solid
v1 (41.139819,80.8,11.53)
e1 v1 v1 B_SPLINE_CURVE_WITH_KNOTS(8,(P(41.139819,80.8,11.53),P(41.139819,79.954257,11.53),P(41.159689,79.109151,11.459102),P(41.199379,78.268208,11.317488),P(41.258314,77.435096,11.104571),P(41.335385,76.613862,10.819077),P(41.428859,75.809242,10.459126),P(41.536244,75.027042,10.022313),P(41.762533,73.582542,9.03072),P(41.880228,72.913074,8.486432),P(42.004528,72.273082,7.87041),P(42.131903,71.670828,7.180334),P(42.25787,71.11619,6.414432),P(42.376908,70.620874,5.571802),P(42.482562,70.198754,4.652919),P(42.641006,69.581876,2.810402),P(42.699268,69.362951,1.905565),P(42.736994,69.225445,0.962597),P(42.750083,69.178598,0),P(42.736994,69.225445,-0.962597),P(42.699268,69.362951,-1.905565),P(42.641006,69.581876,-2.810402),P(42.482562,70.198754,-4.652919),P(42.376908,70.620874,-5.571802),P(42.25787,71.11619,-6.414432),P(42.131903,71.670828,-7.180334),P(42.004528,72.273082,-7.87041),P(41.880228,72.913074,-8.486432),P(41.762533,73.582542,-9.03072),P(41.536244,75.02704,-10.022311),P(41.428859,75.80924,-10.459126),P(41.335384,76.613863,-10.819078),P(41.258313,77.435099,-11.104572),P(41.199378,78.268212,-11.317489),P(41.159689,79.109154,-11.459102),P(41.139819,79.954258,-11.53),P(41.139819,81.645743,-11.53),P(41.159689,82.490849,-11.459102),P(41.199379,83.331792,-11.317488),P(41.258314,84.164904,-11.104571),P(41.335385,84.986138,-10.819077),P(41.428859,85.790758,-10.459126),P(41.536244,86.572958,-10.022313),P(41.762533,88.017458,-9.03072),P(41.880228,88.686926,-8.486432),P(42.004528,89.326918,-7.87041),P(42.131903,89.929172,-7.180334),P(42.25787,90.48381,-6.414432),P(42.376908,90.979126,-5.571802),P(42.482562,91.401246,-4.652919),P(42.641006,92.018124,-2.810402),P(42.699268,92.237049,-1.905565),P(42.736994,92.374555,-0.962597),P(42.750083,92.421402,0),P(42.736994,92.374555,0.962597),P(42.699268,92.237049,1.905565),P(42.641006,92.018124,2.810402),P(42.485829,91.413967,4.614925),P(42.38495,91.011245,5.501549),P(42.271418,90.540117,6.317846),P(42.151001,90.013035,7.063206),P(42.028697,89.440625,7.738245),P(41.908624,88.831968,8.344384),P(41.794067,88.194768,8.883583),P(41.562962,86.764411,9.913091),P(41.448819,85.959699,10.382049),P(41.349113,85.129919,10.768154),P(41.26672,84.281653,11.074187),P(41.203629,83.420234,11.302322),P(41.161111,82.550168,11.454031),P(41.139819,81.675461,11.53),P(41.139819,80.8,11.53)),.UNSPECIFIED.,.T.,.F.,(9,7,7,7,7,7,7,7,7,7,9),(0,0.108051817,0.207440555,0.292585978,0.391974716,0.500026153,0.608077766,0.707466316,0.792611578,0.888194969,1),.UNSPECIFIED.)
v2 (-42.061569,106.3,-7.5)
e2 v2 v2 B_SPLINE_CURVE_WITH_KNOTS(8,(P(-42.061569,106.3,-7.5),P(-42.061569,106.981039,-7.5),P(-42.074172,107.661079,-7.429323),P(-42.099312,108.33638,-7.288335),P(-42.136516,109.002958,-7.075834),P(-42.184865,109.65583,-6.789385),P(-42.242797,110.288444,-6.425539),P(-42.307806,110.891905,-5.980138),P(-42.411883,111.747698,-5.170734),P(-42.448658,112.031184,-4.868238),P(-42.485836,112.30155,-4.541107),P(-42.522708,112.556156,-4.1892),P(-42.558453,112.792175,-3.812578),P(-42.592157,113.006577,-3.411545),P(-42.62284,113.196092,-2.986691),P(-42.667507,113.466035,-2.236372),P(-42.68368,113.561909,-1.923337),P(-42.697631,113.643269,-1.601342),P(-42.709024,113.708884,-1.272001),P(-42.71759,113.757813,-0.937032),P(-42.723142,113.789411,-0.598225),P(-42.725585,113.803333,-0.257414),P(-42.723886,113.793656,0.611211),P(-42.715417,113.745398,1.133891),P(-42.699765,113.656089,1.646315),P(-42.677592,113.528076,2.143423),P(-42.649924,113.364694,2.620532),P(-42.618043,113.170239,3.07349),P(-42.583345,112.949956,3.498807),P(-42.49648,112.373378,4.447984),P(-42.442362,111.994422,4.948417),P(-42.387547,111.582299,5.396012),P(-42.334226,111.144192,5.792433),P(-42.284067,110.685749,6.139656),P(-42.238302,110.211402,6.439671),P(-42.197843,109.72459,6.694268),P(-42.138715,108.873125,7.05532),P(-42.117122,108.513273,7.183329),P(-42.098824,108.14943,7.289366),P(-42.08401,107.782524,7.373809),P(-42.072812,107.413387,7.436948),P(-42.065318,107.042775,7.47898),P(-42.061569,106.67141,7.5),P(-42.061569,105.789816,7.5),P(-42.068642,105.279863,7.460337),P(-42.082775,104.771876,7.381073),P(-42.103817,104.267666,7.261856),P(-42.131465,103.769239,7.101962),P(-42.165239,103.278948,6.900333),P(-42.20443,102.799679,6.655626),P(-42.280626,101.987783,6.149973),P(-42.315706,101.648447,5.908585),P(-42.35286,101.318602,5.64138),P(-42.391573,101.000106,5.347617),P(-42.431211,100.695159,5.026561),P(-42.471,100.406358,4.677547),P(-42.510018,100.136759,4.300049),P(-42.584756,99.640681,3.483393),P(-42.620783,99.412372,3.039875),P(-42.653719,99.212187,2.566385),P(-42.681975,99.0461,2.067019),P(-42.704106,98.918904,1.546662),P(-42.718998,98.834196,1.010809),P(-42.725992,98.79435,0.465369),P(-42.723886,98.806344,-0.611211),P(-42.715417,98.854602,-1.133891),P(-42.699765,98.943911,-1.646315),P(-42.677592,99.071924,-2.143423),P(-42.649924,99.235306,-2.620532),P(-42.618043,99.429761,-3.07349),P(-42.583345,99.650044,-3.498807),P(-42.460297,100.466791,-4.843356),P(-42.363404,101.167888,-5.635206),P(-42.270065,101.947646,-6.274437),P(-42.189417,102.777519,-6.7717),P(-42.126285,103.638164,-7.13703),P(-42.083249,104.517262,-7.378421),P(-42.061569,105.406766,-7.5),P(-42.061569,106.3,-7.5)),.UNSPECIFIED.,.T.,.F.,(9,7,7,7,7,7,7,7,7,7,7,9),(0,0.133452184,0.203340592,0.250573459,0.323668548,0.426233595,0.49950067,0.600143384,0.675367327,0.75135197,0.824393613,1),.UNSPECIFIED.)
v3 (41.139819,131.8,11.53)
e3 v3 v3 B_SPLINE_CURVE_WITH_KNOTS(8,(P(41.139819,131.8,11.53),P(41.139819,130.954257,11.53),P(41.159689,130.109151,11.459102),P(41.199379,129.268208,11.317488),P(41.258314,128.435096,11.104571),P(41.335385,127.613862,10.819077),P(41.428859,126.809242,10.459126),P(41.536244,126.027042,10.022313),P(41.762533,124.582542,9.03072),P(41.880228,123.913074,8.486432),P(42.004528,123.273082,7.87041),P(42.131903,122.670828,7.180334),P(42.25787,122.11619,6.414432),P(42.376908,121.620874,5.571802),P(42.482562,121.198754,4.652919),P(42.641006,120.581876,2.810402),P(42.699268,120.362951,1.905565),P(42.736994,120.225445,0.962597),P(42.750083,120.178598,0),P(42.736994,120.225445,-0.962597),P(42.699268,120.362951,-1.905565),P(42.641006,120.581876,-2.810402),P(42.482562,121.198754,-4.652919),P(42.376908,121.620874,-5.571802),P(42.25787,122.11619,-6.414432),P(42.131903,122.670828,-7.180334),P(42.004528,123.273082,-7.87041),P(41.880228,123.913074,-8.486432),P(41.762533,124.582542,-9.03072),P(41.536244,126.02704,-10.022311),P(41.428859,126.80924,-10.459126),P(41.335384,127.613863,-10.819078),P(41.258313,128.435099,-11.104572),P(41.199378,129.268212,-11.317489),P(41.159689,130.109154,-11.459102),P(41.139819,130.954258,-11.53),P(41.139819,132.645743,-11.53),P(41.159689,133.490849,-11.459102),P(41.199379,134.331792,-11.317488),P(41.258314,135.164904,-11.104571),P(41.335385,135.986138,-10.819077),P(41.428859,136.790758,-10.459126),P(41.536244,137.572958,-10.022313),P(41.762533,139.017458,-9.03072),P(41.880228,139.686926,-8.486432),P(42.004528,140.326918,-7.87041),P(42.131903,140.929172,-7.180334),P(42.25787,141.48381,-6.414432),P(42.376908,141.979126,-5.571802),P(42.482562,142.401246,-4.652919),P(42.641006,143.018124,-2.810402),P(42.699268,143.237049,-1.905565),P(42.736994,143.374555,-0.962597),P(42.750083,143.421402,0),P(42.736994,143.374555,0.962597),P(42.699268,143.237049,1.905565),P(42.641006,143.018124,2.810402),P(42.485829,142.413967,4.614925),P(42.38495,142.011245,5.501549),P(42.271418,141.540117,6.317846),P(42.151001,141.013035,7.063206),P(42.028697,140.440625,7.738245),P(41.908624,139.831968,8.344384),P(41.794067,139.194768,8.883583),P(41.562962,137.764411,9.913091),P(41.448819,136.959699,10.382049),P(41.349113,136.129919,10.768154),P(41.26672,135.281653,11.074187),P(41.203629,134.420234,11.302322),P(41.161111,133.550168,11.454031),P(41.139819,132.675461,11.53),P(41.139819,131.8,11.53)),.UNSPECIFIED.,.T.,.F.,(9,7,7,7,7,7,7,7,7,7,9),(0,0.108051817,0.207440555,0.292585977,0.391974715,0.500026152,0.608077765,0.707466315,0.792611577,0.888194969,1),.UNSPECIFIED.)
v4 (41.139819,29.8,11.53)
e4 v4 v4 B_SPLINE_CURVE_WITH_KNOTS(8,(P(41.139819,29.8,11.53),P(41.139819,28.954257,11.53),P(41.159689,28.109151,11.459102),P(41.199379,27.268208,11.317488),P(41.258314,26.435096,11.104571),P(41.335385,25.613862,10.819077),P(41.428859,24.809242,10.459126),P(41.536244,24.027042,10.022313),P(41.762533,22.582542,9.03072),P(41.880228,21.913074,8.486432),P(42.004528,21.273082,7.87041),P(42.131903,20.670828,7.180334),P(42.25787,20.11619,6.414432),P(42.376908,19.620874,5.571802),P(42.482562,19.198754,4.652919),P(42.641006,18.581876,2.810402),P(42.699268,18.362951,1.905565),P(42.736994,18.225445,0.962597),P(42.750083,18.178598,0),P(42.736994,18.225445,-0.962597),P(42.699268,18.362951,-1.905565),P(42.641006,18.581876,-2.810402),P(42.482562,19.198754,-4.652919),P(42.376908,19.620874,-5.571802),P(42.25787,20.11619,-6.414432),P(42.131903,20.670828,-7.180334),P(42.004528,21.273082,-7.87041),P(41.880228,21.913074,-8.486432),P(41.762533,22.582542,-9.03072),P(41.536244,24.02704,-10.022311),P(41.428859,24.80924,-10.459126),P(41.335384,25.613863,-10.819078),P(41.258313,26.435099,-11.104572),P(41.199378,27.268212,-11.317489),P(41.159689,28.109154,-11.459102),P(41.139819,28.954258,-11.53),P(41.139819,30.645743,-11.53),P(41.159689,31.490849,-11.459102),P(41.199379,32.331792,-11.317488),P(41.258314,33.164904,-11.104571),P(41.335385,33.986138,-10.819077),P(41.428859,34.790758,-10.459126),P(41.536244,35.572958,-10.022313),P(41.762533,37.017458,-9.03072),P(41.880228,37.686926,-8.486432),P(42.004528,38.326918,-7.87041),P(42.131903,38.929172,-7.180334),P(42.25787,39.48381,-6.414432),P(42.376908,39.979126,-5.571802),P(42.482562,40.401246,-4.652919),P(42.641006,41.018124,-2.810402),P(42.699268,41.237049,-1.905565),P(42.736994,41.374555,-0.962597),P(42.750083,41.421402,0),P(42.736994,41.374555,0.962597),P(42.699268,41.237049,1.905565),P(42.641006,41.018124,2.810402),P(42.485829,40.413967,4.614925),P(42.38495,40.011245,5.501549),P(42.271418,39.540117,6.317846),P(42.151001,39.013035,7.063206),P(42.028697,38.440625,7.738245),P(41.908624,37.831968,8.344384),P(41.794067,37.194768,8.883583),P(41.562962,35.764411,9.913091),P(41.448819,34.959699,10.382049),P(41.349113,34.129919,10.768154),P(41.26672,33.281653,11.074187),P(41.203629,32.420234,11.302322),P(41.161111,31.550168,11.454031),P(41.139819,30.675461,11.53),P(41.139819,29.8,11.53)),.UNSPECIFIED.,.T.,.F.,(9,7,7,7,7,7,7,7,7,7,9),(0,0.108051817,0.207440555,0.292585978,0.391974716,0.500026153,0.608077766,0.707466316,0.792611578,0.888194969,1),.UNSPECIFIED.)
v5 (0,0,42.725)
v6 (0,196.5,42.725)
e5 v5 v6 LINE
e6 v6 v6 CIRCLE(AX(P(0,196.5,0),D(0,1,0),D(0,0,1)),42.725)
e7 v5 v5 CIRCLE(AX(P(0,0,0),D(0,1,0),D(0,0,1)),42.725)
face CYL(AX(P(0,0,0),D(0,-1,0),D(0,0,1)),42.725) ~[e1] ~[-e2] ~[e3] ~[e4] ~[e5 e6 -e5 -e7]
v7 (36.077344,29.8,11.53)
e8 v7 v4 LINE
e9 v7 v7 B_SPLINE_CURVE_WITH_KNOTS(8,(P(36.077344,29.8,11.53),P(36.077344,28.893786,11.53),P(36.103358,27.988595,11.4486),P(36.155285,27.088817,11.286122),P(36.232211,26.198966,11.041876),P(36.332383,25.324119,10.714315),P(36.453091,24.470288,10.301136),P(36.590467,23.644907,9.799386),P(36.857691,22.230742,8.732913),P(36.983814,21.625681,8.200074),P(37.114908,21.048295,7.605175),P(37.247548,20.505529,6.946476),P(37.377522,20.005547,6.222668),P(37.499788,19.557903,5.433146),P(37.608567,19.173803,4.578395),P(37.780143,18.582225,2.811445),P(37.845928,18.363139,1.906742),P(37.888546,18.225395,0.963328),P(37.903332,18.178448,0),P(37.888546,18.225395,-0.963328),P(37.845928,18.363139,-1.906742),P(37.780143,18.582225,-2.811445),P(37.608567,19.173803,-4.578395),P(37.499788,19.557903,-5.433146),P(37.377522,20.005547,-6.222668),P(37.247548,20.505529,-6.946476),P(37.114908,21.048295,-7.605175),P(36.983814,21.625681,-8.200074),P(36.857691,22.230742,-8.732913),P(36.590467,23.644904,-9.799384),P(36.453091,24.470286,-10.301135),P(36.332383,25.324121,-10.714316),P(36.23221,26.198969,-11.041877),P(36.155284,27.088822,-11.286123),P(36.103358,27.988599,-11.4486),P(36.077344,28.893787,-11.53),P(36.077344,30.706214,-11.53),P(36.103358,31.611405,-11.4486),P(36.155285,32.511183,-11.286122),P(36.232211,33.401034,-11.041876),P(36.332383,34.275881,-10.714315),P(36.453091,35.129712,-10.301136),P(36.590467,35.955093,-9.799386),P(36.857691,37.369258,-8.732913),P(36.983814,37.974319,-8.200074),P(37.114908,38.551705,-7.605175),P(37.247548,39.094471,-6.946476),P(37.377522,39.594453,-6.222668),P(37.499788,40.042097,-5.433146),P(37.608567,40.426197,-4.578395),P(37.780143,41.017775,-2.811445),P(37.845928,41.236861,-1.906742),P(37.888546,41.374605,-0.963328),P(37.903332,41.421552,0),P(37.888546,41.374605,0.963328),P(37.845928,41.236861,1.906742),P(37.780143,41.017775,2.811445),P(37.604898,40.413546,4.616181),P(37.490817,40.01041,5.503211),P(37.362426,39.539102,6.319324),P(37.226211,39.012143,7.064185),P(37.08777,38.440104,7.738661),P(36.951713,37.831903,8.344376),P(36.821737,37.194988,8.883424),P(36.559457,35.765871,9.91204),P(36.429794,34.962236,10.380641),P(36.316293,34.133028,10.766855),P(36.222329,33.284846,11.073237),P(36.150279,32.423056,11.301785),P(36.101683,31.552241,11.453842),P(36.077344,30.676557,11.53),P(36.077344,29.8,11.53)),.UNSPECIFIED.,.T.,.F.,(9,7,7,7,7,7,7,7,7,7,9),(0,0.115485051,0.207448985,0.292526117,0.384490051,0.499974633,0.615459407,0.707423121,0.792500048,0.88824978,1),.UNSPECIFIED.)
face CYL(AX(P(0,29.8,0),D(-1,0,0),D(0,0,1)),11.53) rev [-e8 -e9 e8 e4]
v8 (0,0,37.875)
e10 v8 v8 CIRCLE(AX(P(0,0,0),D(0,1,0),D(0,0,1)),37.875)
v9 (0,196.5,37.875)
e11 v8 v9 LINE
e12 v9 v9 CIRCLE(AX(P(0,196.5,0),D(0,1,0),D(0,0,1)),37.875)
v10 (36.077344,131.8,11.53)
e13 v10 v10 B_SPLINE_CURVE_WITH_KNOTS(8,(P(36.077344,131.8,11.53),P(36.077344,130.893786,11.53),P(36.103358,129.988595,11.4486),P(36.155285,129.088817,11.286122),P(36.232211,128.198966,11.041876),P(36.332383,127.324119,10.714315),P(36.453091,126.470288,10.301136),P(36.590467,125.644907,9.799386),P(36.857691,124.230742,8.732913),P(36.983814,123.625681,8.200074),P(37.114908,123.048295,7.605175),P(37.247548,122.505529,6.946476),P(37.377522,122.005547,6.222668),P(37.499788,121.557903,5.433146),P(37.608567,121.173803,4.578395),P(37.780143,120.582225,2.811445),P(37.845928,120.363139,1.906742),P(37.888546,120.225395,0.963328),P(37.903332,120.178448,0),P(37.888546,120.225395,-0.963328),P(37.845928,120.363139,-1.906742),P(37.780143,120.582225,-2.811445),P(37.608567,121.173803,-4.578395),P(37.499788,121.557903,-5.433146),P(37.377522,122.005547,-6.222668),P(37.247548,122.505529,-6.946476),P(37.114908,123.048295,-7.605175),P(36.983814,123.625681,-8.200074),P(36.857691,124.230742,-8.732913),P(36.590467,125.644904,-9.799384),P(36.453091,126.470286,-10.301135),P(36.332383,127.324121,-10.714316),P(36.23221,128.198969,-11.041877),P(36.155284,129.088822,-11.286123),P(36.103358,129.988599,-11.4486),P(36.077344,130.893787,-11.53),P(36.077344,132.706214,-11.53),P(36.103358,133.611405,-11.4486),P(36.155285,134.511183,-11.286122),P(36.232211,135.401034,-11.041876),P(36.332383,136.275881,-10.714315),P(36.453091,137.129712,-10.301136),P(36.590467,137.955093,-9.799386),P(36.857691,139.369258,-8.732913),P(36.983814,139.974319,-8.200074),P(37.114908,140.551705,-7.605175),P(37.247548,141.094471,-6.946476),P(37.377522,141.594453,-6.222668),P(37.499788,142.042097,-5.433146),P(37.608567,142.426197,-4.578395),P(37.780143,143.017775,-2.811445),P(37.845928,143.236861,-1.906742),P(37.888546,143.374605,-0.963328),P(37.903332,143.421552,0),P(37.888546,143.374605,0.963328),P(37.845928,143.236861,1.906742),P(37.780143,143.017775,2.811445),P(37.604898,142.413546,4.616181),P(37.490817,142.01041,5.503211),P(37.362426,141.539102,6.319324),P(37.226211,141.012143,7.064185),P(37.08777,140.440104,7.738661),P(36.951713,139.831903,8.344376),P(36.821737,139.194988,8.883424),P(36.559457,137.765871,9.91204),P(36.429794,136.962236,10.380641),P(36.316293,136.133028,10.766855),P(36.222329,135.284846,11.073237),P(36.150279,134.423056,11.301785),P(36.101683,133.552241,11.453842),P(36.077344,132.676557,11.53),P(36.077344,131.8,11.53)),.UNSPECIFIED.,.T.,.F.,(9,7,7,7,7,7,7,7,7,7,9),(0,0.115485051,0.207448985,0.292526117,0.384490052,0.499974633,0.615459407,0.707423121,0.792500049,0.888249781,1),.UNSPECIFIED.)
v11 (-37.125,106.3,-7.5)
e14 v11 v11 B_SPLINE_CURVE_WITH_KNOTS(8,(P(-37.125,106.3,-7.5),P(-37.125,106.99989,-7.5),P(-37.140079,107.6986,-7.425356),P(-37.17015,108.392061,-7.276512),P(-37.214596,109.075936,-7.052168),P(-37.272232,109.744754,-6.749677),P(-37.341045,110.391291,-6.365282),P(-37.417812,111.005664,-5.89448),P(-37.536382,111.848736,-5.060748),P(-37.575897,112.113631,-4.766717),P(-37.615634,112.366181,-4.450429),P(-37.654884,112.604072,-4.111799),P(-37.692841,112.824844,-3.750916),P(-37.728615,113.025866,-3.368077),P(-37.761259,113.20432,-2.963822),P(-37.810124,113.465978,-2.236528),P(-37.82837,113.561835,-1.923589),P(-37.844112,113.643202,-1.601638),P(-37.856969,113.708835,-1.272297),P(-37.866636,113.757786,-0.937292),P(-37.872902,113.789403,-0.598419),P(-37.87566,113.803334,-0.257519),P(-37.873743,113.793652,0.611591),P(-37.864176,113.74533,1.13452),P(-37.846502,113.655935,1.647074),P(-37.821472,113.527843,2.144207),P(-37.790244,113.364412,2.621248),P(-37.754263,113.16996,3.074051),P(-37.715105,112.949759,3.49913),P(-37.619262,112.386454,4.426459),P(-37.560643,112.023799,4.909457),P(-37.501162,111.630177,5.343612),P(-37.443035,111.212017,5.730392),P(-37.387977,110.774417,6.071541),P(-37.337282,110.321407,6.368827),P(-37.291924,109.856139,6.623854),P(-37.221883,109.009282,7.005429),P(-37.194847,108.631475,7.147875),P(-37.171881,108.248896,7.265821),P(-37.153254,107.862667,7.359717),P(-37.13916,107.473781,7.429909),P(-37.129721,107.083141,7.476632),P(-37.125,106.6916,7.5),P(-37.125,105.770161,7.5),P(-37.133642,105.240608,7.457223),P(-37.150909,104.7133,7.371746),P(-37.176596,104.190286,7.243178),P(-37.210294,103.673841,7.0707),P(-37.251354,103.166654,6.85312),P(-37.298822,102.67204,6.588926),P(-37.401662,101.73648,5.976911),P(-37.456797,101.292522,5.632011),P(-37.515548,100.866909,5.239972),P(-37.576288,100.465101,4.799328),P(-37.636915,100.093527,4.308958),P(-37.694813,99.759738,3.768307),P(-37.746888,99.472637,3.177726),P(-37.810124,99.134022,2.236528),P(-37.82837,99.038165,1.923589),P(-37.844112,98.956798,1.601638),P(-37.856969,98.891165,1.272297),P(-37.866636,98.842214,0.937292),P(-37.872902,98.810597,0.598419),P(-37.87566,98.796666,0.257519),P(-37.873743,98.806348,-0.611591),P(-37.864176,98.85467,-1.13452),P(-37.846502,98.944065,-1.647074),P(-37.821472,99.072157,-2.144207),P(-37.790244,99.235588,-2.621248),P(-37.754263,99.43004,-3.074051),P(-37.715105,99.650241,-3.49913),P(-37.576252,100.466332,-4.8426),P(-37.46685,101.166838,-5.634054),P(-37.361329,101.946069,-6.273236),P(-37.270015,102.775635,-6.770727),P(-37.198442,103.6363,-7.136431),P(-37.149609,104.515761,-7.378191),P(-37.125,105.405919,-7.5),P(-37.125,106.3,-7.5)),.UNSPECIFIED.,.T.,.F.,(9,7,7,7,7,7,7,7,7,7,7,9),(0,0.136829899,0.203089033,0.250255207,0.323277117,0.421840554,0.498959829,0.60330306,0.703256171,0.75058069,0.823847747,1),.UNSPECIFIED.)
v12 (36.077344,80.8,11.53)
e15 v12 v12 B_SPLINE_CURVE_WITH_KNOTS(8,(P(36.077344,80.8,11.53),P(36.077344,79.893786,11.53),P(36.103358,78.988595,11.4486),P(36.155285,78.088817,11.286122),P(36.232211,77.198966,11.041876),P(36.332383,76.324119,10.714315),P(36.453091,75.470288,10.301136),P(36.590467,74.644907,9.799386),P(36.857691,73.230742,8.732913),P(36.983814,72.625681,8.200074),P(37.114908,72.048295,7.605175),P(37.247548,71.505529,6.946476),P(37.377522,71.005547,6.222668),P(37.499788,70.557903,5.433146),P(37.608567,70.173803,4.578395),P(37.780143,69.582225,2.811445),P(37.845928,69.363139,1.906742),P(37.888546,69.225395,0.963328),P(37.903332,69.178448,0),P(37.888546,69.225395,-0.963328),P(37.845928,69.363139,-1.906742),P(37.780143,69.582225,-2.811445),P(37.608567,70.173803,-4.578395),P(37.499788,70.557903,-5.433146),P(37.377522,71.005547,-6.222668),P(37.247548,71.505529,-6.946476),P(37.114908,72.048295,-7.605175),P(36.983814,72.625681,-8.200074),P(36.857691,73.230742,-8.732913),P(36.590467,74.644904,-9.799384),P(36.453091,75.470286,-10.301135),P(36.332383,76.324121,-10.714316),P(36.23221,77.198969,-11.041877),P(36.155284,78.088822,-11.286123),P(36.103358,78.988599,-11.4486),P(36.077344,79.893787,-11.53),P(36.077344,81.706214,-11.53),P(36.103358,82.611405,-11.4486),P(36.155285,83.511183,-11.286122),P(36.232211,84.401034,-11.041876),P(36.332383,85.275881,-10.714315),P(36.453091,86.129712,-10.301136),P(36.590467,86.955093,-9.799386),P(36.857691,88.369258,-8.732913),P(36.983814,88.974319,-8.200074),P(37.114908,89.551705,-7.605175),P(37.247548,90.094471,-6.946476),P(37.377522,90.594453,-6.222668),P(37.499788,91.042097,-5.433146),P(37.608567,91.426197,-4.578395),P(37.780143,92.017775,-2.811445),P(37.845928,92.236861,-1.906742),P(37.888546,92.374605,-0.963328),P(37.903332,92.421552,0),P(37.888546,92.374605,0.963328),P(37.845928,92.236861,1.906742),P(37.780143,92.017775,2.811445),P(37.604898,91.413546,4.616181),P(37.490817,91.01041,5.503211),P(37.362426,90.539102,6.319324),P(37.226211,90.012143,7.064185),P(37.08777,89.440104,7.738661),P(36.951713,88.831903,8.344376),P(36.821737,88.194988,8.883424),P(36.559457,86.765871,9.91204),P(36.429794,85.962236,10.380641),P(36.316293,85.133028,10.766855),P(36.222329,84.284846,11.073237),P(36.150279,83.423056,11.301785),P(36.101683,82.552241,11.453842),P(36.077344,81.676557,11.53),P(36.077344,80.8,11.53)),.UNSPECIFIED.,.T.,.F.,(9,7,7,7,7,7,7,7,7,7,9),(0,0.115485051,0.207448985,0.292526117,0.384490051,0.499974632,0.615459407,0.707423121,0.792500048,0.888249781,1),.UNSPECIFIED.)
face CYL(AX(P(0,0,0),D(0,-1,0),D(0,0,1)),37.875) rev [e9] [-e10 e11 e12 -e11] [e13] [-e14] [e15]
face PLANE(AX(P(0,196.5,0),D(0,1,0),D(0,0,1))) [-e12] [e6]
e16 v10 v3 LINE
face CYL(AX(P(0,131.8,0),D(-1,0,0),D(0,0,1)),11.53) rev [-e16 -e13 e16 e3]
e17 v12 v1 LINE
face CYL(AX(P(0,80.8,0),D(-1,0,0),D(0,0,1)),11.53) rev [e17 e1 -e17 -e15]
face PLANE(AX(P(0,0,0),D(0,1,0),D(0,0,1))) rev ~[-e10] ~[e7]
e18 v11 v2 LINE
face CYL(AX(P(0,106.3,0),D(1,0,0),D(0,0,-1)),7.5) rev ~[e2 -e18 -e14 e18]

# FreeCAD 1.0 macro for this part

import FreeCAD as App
import Part
import Sketcher

V = App.Vector

doc = App.newDocument("Part")
params = doc.addObject("Spreadsheet::Sheet", "Params")
for row, (alias, value) in enumerate([
    ("sketch1_diameter", "85.45 mm"),
    ("sketch1_diameter2", "75.75 mm"),
    ("pad1_length", "196.5 mm"),
    ("sketch2_diameter", "23.06 mm"),
    ("sketch3_diameter", "15 mm"),
], start=1):
    params.set(f"A{row}", alias)
    params.set(f"B{row}", "=" + value)
    params.setAlias(f"B{row}", alias)

body = doc.addObject("PartDesign::Body", "Body")

# Sketch on XZ plane
sketch1 = body.newObject("Sketcher::SketchObject", "Sketch")
sketch1.AttachmentSupport = (doc.getObject("XZ_Plane"), [""])
sketch1.MapMode = "FlatFace"
sketch1.addGeometry(Part.Circle(V(0, 0, 0), V(0, 0, 1), 43), False)
sketch1.addGeometry(Part.Circle(V(0, 0, 0), V(0, 0, 1), 38), False)
sketch1.addConstraint(Sketcher.Constraint("Coincident", 0, 3, -1, 1))
sketch1.addConstraint(Sketcher.Constraint("Coincident", 1, 3, -1, 1))
sketch1.addConstraint(Sketcher.Constraint("Diameter", 0, 85.45))
sketch1.addConstraint(Sketcher.Constraint("Diameter", 1, 75.75))
sketch1.setExpression("Constraints[2]", "Params.sketch1_diameter")
sketch1.setExpression("Constraints[3]", "Params.sketch1_diameter2")
pad1 = body.newObject("PartDesign::Pad", "Pad")
pad1.Profile = sketch1
pad1.setExpression("Length", "Params.pad1_length")
pad1.Reversed = True

# Sketch on YZ plane
sketch2 = body.newObject("Sketcher::SketchObject", "Sketch001")
sketch2.AttachmentSupport = (doc.getObject("YZ_Plane"), [""])
sketch2.MapMode = "FlatFace"
sketch2.addGeometry(Part.Circle(V(132, 0, 0), V(0, 0, 1), 12), False)
sketch2.addGeometry(Part.Circle(V(81, 0, 0), V(0, 0, 1), 12), False)
sketch2.addGeometry(Part.Circle(V(30, 0, 0), V(0, 0, 1), 12), False)
sketch2.addConstraint(Sketcher.Constraint("Equal", 0, 1))
sketch2.addConstraint(Sketcher.Constraint("Equal", 1, 2))
sketch2.addConstraint(Sketcher.Constraint("PointOnObject", 0, 3, -1))
sketch2.addConstraint(Sketcher.Constraint("PointOnObject", 1, 3, -1))
sketch2.addConstraint(Sketcher.Constraint("PointOnObject", 2, 3, -1))
sketch2.addConstraint(Sketcher.Constraint("Diameter", 0, 23.06))
sketch2.addConstraint(Sketcher.Constraint("DistanceX", 1, 3, 0, 3, 51.0))
sketch2.addConstraint(Sketcher.Constraint("DistanceX", 2, 3, 1, 3, 51.0))
sketch2.addConstraint(Sketcher.Constraint("DistanceX", -1, 1, 0, 3, 131.8))
sketch2.setExpression("Constraints[5]", "Params.sketch2_diameter")
pocket1 = body.newObject("PartDesign::Pocket", "Pocket")
pocket1.Profile = sketch2
pocket1.Type = "ThroughAll"
pocket1.Reversed = True

# Sketch on YZ plane
sketch3 = body.newObject("Sketcher::SketchObject", "Sketch002")
sketch3.AttachmentSupport = (doc.getObject("YZ_Plane"), [""])
sketch3.MapMode = "FlatFace"
sketch3.addGeometry(Part.Circle(V(106, 0, 0), V(0, 0, 1), 8), False)
sketch3.addConstraint(Sketcher.Constraint("PointOnObject", 0, 3, -1))
sketch3.addConstraint(Sketcher.Constraint("Diameter", 0, 15.0))
sketch3.addConstraint(Sketcher.Constraint("DistanceX", -1, 1, 0, 3, 106.3))
sketch3.setExpression("Constraints[1]", "Params.sketch3_diameter")
pocket2 = body.newObject("PartDesign::Pocket", "Pocket001")
pocket2.Profile = sketch3
pocket2.Type = "ThroughAll"

doc.recompute()
